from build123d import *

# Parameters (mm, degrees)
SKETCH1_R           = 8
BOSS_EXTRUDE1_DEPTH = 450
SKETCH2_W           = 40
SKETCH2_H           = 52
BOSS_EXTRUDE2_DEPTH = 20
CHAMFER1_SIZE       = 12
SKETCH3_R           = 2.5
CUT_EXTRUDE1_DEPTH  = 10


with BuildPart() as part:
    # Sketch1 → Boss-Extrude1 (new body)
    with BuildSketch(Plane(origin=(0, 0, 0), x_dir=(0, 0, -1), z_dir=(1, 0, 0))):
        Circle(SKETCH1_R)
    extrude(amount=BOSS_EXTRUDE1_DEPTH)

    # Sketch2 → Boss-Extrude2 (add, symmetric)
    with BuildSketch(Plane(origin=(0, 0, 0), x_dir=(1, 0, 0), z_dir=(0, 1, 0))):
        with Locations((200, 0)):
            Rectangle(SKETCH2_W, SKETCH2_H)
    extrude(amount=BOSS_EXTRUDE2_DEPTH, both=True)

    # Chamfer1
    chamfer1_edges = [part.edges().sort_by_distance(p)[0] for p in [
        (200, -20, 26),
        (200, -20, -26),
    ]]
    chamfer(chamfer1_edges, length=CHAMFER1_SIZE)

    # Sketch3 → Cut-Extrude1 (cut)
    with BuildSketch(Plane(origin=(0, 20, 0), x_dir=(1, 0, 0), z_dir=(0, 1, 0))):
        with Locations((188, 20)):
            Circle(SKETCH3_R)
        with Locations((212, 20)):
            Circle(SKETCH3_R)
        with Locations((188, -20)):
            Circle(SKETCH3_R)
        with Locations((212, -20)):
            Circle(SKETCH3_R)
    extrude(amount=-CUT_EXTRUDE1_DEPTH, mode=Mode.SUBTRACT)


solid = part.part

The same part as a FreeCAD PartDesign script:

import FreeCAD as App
import Part
import Sketcher
Q = App.Units.Quantity


def edges_at(feature, points):
    """Names of the edges that pass closest to the given points."""
    edges = feature.Shape.Edges
    near = lambda p: min(range(len(edges)), key=lambda i: edges[i].distToShape(Part.Vertex(*p))[0])
    return sorted({f"Edge{near(p) + 1}" for p in points})

doc = App.newDocument("Part")
params = doc.addObject("Spreadsheet::Sheet", "Params")
for row, (alias, value) in enumerate([
    ("sketch1_diameter", "16 mm"),
    ("pad1_length", "450 mm"),
    ("sketch2_width", "40 mm"),
    ("sketch2_height", "52 mm"),
    ("pad2_length", "40 mm"),
    ("chamfer_size", "12 mm"),
    ("sketch3_diameter", "5 mm"),
    ("pocket1_length", "10 mm"),
], start=1):
    params.set(f"A{row}", alias)
    params.set(f"B{row}", "=" + value)
    params.setAlias(f"B{row}", alias)

body = doc.addObject("PartDesign::Body", "Body")

sketch1 = doc.addObject("Sketcher::SketchObject", "Sketch")
body.addObject(sketch1)
sketch1.AttachmentSupport = (doc.YZ_Plane, [""])
sketch1.MapMode = "FlatFace"
sketch1.addGeometry(Part.Circle(App.Vector(0, 0, 0), App.Vector(0, 0, 1), 8), False)
sketch1.addConstraint([
    Sketcher.Constraint("Coincident", 0, 3, -1, 1),
    Sketcher.Constraint("Diameter", 0, Q("16 mm")),
])
sketch1.setExpression("Constraints[1]", "Params.sketch1_diameter")
pad1 = doc.addObject("PartDesign::Pad", "Pad")
body.addObject(pad1)
pad1.Profile = sketch1
pad1.setExpression("Length", "Params.pad1_length")

sketch2 = doc.addObject("Sketcher::SketchObject", "Sketch001")
body.addObject(sketch2)
sketch2.AttachmentSupport = (doc.XZ_Plane, [""])
sketch2.MapMode = "FlatFace"
sketch2.addGeometry([
    Part.LineSegment(App.Vector(180, -26, 0), App.Vector(180, 26, 0)),
    Part.LineSegment(App.Vector(180, 26, 0), App.Vector(220, 26, 0)),
    Part.LineSegment(App.Vector(220, 26, 0), App.Vector(220, -26, 0)),
    Part.LineSegment(App.Vector(220, -26, 0), App.Vector(180, -26, 0)),
], False)
sketch2.addConstraint([
    Sketcher.Constraint("Coincident", 0, 2, 1, 1),
    Sketcher.Constraint("Coincident", 1, 2, 2, 1),
    Sketcher.Constraint("Coincident", 2, 2, 3, 1),
    Sketcher.Constraint("Coincident", 3, 2, 0, 1),
    Sketcher.Constraint("Vertical", 0),
    Sketcher.Constraint("Horizontal", 1),
    Sketcher.Constraint("Vertical", 2),
    Sketcher.Constraint("Horizontal", 3),
    Sketcher.Constraint("DistanceX", 1, 1, 1, 2, Q("40 mm")),
    Sketcher.Constraint("DistanceY", 0, 1, 0, 2, Q("52 mm")),
    Sketcher.Constraint("DistanceX", -1, 1, 0, 2, Q("180 mm")),
    Sketcher.Constraint("DistanceY", -1, 1, 0, 2, Q("26 mm")),
])
sketch2.setExpression("Constraints[8]", "Params.sketch2_width")
sketch2.setExpression("Constraints[9]", "Params.sketch2_height")
pad2 = doc.addObject("PartDesign::Pad", "Pad001")
body.addObject(pad2)
pad2.Profile = sketch2
pad2.setExpression("Length", "Params.pad2_length")
pad2.Midplane = True
doc.recompute()

chamfer = doc.addObject("PartDesign::Chamfer", "Chamfer")
body.addObject(chamfer)
chamfer.Base = (pad2, edges_at(pad2, [(200, -20, 26), (200, -20, -26)]))
chamfer.setExpression("Size", "Params.chamfer_size")

sketch3 = doc.addObject("Sketcher::SketchObject", "Sketch002")
body.addObject(sketch3)
sketch3.AttachmentSupport = (doc.XZ_Plane, [""])
sketch3.MapMode = "FlatFace"
sketch3.AttachmentOffset = App.Placement(App.Vector(0, 0, -20), App.Rotation())
sketch3.addGeometry([
    Part.Circle(App.Vector(188, -20, 0), App.Vector(0, 0, 1), 2.5),
    Part.Circle(App.Vector(212, -20, 0), App.Vector(0, 0, 1), 2.5),
    Part.Circle(App.Vector(188, 20, 0), App.Vector(0, 0, 1), 2.5),
    Part.Circle(App.Vector(212, 20, 0), App.Vector(0, 0, 1), 2.5),
], False)
sketch3.addConstraint([
    Sketcher.Constraint("Equal", 0, 1),
    Sketcher.Constraint("Equal", 1, 2),
    Sketcher.Constraint("Equal", 2, 3),
    Sketcher.Constraint("Symmetric", 0, 3, 2, 3, -1),
    Sketcher.Constraint("Symmetric", 1, 3, 3, 3, -1),
    Sketcher.Constraint("Horizontal", 0, 3, 1, 3),
    Sketcher.Constraint("Diameter", 0, Q("5 mm")),
    Sketcher.Constraint("DistanceX", -1, 1, 0, 3, Q("188 mm")),
    Sketcher.Constraint("DistanceY", 0, 3, -1, 1, Q("20 mm")),
    Sketcher.Constraint("DistanceX", -1, 1, 1, 3, Q("212 mm")),
])
sketch3.setExpression("Constraints[6]", "Params.sketch3_diameter")
pocket1 = doc.addObject("PartDesign::Pocket", "Pocket")
body.addObject(pocket1)
pocket1.Profile = sketch3
pocket1.setExpression("Length", "Params.pocket1_length")
pocket1.Reversed = True

doc.recompute()
